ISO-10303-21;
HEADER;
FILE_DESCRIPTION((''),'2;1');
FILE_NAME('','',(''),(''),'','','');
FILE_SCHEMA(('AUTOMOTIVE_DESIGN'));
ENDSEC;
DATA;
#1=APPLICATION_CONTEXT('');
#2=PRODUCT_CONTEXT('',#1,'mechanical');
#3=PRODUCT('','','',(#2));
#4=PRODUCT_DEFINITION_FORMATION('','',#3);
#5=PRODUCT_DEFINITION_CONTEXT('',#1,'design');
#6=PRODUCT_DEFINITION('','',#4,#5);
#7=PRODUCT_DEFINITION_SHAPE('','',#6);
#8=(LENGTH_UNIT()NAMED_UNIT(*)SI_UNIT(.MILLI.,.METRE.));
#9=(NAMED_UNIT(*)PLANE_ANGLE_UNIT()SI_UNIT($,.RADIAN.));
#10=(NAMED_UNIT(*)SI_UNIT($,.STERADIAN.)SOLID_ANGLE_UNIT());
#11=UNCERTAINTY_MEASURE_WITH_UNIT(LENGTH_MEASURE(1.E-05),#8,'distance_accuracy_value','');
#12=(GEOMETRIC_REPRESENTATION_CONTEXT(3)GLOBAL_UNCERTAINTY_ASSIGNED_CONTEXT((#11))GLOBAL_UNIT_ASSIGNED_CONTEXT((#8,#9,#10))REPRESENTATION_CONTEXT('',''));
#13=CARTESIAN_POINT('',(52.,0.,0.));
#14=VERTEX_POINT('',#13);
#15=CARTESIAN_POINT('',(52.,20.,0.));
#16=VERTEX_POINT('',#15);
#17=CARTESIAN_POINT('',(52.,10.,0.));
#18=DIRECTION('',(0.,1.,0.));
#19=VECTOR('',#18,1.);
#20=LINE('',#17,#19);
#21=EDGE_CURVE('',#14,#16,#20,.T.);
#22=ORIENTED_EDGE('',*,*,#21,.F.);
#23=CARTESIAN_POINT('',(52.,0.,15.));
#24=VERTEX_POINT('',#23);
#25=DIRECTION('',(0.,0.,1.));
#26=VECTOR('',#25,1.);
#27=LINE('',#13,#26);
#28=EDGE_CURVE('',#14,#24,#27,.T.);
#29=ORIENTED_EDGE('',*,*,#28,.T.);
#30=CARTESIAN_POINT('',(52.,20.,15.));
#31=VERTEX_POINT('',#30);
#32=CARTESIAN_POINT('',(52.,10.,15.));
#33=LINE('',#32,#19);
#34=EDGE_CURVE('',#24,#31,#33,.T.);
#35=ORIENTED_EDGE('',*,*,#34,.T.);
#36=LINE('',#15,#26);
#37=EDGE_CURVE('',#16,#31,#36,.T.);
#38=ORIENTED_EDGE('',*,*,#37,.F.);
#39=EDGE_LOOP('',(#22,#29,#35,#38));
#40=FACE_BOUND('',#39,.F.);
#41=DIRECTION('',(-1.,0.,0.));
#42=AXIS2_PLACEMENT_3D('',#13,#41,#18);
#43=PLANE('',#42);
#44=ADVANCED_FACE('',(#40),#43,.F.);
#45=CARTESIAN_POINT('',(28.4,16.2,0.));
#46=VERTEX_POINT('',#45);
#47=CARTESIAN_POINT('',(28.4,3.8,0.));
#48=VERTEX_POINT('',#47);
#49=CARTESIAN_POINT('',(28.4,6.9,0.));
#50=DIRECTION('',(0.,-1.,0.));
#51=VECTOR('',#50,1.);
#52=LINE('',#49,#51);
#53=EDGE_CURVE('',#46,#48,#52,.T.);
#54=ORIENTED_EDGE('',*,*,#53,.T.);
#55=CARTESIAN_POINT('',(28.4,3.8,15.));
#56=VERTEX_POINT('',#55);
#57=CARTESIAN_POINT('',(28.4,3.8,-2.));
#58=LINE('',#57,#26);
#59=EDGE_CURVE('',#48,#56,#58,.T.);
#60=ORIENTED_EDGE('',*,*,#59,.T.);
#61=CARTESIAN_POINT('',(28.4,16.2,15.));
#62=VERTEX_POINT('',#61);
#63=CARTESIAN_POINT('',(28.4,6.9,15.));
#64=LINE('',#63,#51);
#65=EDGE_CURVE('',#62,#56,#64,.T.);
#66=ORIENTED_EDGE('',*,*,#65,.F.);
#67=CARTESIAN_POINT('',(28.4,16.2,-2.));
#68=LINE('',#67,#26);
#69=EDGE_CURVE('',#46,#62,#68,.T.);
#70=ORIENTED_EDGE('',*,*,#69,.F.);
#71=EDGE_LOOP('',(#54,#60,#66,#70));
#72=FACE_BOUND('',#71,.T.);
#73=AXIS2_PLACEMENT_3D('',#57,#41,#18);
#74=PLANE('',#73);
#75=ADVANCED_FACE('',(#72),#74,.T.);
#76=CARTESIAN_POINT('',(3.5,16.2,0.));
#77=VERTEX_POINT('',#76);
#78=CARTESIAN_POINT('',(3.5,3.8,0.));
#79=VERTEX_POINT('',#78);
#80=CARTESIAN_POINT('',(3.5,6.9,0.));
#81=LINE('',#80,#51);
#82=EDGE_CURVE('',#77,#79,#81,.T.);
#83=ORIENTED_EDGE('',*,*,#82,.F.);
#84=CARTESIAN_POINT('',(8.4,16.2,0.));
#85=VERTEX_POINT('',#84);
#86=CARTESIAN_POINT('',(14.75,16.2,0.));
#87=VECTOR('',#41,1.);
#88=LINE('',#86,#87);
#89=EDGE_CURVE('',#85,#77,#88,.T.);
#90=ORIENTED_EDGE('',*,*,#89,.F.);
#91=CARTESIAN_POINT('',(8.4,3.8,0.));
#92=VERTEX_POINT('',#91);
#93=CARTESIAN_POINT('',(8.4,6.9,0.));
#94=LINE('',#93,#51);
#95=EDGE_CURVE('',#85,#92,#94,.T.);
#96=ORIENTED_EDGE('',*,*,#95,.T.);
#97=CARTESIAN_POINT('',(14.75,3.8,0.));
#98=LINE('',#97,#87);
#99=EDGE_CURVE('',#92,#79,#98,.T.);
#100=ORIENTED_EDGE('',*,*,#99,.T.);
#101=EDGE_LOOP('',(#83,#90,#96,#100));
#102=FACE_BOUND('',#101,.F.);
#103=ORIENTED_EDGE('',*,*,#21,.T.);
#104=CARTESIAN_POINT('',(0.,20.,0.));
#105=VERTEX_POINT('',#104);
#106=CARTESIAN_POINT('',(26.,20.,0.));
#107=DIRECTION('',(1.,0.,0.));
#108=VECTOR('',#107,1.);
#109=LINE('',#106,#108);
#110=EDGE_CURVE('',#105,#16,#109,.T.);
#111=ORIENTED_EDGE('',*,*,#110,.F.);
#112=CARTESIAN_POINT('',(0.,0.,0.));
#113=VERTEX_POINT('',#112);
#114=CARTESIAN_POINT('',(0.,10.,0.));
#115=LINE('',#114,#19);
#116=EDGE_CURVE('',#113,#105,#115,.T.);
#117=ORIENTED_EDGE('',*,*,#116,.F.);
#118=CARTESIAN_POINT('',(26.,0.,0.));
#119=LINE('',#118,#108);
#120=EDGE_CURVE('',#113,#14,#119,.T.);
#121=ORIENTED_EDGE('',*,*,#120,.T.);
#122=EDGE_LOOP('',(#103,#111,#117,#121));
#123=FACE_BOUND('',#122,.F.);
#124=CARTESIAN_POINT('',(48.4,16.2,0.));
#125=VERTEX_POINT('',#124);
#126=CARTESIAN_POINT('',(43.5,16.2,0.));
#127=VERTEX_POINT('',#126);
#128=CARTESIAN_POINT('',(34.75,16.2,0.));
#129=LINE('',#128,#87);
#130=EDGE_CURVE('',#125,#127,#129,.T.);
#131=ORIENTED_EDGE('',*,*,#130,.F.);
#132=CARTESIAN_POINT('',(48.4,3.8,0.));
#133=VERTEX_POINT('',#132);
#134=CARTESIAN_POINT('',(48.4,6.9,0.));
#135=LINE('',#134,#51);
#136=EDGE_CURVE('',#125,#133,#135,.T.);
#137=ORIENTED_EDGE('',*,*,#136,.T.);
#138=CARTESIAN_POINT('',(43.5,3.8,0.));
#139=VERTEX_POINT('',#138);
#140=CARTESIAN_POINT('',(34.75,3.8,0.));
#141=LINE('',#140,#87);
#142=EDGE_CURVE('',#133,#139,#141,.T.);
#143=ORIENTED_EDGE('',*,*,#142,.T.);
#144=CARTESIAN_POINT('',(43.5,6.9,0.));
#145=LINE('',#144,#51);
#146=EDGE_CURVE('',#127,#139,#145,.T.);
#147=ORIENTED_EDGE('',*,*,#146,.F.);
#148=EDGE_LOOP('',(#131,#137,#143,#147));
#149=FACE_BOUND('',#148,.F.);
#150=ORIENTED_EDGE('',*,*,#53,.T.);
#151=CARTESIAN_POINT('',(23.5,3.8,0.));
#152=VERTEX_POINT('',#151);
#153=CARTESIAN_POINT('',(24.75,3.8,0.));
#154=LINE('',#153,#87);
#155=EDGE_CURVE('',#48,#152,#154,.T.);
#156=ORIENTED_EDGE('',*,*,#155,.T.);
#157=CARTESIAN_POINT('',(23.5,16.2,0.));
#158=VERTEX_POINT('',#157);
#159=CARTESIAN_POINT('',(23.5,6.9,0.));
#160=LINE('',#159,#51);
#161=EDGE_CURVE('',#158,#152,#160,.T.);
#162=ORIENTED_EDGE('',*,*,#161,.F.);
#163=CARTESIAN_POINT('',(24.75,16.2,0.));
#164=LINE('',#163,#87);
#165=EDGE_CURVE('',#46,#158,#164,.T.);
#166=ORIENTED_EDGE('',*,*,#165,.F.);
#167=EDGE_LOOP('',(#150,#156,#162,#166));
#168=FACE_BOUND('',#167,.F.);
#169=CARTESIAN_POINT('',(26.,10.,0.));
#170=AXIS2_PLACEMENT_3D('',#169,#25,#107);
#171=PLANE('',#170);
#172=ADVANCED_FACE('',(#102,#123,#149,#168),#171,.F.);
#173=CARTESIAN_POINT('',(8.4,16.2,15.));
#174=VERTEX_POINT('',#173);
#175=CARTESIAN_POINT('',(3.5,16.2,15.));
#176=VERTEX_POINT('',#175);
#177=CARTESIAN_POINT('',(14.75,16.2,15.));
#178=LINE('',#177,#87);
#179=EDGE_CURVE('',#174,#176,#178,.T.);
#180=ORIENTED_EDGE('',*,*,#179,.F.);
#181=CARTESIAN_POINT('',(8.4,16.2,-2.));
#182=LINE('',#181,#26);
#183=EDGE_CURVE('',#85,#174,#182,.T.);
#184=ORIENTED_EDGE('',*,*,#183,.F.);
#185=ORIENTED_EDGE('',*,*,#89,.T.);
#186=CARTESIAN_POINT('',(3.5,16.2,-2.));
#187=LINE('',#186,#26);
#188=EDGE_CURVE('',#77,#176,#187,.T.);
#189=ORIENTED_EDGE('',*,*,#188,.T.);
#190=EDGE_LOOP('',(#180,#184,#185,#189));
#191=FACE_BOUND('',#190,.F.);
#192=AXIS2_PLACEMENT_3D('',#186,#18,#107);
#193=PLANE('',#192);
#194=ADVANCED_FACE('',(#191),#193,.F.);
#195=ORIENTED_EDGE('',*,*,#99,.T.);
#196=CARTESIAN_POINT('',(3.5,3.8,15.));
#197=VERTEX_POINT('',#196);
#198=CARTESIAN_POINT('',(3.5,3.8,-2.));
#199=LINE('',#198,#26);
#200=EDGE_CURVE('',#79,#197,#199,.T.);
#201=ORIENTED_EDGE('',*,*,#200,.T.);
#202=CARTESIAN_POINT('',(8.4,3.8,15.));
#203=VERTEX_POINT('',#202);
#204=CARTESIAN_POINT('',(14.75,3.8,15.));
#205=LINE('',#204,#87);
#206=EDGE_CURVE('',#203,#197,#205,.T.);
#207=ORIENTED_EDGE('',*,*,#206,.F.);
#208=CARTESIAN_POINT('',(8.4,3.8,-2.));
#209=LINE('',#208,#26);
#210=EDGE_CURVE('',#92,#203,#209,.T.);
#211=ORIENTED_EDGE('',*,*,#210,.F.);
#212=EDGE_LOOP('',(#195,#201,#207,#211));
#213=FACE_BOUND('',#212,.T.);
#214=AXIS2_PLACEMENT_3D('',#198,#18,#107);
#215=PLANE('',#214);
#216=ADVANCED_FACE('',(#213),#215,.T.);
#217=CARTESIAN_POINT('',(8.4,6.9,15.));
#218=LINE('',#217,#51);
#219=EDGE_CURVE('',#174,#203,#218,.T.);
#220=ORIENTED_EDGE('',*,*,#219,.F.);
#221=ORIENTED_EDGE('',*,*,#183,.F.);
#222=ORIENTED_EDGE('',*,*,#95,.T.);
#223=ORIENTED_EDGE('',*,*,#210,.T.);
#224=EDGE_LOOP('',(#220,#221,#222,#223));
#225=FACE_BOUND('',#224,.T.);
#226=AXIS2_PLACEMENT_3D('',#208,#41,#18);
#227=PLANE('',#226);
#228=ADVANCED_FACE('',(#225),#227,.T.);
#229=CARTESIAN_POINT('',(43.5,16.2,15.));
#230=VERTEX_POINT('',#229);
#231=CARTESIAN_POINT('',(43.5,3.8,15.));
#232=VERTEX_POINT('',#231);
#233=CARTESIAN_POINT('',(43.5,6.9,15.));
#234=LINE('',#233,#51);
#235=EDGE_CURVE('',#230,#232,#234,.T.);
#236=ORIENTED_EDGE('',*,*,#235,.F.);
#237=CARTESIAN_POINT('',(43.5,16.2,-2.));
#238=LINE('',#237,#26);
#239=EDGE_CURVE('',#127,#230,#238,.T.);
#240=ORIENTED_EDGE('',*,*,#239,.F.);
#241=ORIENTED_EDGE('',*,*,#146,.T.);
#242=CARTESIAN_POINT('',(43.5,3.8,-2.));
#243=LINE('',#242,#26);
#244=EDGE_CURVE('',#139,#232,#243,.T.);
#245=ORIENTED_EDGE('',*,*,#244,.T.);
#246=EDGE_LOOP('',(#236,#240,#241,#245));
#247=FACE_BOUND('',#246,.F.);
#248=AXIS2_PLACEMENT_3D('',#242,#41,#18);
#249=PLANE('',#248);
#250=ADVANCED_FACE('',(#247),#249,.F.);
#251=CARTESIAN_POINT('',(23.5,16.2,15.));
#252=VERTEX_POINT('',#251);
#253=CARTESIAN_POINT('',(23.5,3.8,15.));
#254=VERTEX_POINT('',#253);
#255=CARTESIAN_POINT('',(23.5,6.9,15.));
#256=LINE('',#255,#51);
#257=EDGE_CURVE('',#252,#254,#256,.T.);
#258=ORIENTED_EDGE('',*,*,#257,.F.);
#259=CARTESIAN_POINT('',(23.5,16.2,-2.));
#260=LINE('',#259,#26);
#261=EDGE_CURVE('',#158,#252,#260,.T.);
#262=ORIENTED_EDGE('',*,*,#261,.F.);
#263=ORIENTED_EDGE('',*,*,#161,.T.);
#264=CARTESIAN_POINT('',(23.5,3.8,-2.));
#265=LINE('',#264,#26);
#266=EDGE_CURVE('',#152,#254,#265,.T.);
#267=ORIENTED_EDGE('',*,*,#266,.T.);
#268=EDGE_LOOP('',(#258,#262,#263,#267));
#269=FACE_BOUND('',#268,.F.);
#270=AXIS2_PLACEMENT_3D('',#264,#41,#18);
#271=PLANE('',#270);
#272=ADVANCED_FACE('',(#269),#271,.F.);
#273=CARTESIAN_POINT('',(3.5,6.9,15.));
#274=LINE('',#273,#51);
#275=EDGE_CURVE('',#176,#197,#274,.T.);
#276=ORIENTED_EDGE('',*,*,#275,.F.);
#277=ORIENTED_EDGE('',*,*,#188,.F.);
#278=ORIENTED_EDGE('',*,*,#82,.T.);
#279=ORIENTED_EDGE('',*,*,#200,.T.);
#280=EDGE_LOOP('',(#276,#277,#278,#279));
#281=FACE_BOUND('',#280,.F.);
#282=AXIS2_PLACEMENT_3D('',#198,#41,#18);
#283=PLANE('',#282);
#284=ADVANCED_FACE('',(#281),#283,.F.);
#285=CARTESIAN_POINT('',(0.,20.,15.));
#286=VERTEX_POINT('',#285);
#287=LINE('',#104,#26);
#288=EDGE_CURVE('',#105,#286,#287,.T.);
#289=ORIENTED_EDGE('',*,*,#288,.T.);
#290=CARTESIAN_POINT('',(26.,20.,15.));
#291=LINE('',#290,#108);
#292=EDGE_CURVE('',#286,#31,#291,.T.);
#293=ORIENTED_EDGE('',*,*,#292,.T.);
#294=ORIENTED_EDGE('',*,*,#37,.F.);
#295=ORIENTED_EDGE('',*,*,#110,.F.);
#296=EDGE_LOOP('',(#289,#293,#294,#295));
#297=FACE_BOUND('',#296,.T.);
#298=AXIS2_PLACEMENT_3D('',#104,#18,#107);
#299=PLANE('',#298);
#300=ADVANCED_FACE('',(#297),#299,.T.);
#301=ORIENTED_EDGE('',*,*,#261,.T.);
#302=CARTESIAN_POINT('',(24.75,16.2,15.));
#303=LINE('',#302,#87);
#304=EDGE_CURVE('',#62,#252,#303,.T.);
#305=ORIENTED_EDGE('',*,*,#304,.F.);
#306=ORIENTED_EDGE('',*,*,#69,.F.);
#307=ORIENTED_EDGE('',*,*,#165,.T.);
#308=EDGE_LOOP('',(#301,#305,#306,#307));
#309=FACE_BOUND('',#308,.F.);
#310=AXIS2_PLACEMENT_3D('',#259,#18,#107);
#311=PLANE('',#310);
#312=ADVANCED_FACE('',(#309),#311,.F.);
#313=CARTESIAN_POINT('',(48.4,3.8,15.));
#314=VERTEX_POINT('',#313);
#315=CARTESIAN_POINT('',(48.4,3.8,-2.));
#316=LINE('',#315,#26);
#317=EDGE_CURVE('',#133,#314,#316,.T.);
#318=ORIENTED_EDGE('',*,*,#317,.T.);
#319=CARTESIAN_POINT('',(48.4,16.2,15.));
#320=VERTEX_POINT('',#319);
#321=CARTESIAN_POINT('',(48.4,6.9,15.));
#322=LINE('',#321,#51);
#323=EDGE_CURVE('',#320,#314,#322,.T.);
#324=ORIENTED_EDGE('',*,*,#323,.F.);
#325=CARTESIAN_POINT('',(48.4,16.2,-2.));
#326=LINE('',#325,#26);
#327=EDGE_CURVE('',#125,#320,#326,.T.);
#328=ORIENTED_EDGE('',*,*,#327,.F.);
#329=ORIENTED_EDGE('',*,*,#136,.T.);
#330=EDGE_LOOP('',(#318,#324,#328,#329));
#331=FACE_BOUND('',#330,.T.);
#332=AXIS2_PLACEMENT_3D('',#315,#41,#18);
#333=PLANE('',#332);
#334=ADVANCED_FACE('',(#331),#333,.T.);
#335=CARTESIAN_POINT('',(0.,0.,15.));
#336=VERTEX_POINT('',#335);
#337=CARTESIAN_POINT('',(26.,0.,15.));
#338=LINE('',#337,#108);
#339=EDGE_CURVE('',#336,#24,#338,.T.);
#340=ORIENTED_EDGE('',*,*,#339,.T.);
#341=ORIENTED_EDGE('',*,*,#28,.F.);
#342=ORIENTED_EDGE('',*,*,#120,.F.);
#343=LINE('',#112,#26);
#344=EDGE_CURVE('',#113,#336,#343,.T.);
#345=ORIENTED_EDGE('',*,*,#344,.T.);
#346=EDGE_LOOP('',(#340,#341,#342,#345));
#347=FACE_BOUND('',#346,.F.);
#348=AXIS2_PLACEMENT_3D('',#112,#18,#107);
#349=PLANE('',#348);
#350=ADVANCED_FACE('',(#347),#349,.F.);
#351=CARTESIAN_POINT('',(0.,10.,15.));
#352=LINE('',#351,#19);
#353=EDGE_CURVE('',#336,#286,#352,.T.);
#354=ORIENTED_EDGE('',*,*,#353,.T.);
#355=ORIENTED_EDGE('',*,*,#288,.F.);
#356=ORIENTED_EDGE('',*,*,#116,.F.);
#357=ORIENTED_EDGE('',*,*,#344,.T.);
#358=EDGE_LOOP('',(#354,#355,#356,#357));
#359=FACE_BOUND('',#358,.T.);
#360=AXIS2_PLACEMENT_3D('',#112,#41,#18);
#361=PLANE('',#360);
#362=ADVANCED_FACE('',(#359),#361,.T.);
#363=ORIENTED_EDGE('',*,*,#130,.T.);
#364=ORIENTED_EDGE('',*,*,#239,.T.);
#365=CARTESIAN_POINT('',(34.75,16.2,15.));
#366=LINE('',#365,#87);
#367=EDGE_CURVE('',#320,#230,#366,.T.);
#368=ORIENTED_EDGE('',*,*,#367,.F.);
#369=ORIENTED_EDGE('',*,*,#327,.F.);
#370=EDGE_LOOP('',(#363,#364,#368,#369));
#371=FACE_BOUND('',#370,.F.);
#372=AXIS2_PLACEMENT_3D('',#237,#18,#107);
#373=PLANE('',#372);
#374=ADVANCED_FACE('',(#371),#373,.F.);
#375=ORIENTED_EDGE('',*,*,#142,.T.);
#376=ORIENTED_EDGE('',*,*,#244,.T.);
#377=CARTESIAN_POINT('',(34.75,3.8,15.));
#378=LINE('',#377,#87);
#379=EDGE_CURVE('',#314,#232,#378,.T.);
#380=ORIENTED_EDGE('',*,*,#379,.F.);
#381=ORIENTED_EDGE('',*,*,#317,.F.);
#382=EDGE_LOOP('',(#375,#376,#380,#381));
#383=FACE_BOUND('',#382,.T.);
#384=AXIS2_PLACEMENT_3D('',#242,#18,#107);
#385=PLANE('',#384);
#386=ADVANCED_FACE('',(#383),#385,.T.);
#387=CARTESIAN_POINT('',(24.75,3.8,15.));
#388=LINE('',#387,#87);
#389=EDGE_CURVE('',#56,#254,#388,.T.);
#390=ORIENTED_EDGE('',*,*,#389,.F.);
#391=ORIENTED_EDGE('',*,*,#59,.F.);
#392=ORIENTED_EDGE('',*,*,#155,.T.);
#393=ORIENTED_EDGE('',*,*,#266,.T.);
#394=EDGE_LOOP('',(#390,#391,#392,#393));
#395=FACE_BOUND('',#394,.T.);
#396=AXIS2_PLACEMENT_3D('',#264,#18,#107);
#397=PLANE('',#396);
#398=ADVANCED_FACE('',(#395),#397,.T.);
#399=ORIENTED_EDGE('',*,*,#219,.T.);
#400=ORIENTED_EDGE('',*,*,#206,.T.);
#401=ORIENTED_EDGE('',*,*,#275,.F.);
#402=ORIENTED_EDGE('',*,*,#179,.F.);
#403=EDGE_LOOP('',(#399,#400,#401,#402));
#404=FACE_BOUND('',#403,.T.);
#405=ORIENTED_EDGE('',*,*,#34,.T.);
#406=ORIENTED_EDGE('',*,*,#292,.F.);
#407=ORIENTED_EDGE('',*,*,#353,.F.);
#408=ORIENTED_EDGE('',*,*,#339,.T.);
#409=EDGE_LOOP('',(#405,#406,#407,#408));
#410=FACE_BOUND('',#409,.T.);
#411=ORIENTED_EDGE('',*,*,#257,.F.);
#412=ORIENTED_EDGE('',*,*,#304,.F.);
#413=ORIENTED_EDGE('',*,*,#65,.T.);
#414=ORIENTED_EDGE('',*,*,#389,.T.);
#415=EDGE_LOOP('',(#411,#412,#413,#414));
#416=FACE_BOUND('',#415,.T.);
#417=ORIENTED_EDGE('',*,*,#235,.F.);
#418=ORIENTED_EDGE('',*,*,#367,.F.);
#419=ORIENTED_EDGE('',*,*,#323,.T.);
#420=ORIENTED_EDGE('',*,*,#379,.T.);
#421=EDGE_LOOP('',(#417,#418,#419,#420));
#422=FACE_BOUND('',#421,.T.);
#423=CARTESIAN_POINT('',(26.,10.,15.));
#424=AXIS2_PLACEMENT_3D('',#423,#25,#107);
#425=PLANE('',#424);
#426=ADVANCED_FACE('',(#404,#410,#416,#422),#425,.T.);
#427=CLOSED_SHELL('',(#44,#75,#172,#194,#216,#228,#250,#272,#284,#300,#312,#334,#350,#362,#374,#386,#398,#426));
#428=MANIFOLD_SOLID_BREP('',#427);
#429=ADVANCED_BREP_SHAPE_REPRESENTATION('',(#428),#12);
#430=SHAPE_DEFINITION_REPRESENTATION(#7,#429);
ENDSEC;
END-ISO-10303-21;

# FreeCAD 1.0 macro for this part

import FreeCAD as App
import Part
import Sketcher
Q = App.Units.Quantity


def add_polygon(sketch, points):
    """Adds a closed chain of lines whose ends are joined by coincident constraints."""
    first, n = sketch.GeometryCount, len(points)
    for a, b in zip(points, points[1:] + points[:1]):
        sketch.addGeometry(Part.LineSegment(App.Vector(*a, 0), App.Vector(*b, 0)), False)
    for i in range(n):
        sketch.addConstraint(Sketcher.Constraint("Coincident", first + i, 2, first + (i + 1) % n, 1))

doc = App.newDocument("Part")
body = doc.addObject("PartDesign::Body", "Body")

# Sketch on XY plane
sketch1 = body.newObject("Sketcher::SketchObject", "Sketch")
sketch1.AttachmentSupport = (doc.getObject("XY_Plane"), [""])
sketch1.MapMode = "FlatFace"
sketch1.AttachmentOffset = App.Placement(App.Vector(0, 0, -2), App.Rotation())
add_polygon(sketch1, [(23.5, 16.2), (23.5, 3.8), (28.4, 3.8), (28.4, 16.2)])  # lines 0-3
sketch1.addConstraint([
    Sketcher.Constraint("Vertical", 0),
    Sketcher.Constraint("Horizontal", 1),
    Sketcher.Constraint("Vertical", 2),
    Sketcher.Constraint("Horizontal", 3),
    Sketcher.Constraint("DistanceX", 1, 1, 1, 2, Q("4.9 mm")),
    Sketcher.Constraint("DistanceY", 0, 2, 0, 1, Q("12.4 mm")),
    Sketcher.Constraint("DistanceX", -1, 1, 0, 2, Q("23.5 mm")),
    Sketcher.Constraint("DistanceY", -1, 1, 0, 2, Q("3.8 mm")),
])
pad1 = body.newObject("PartDesign::Pad", "Pad")
pad1.Profile = sketch1
pad1.Length = 25
body2 = doc.addObject("PartDesign::Body", "Body001")

# Sketch on XY plane
sketch2 = body2.newObject("Sketcher::SketchObject", "Sketch001")
sketch2.AttachmentSupport = (doc.getObject("XY_Plane001"), [""])
sketch2.MapMode = "FlatFace"
sketch2.AttachmentOffset = App.Placement(App.Vector(0, 0, -2), App.Rotation())
add_polygon(sketch2, [(43.5, 16.2), (43.5, 3.8), (48.4, 3.8), (48.4, 16.2)])  # lines 0-3
sketch2.addConstraint([
    Sketcher.Constraint("Vertical", 0),
    Sketcher.Constraint("Horizontal", 1),
    Sketcher.Constraint("Vertical", 2),
    Sketcher.Constraint("Horizontal", 3),
    Sketcher.Constraint("DistanceX", 1, 1, 1, 2, Q("4.9 mm")),
    Sketcher.Constraint("DistanceY", 0, 2, 0, 1, Q("12.4 mm")),
    Sketcher.Constraint("DistanceX", -1, 1, 0, 2, Q("43.5 mm")),
    Sketcher.Constraint("DistanceY", -1, 1, 0, 2, Q("3.8 mm")),
])
pad2 = body2.newObject("PartDesign::Pad", "Pad001")
pad2.Profile = sketch2
pad2.Length = 25
body3 = doc.addObject("PartDesign::Body", "Body002")
body3.AllowCompound = True

# Sketch on XY plane
sketch3 = body3.newObject("Sketcher::SketchObject", "Sketch002")
sketch3.AttachmentSupport = (doc.getObject("XY_Plane002"), [""])
sketch3.MapMode = "FlatFace"
sketch3.AttachmentOffset = App.Placement(App.Vector(0, 0, -2), App.Rotation())
add_polygon(sketch3, [(3.5, 16.2), (3.5, 3.8), (8.4, 3.8), (8.4, 16.2)])  # lines 0-3
sketch3.addConstraint([
    Sketcher.Constraint("Vertical", 0),
    Sketcher.Constraint("Horizontal", 1),
    Sketcher.Constraint("Vertical", 2),
    Sketcher.Constraint("Horizontal", 3),
    Sketcher.Constraint("DistanceX", 1, 1, 1, 2, Q("4.9 mm")),
    Sketcher.Constraint("DistanceY", 0, 2, 0, 1, Q("12.4 mm")),
    Sketcher.Constraint("DistanceX", -1, 1, 0, 2, Q("3.5 mm")),
    Sketcher.Constraint("DistanceY", -1, 1, 0, 2, Q("3.8 mm")),
])
pad3 = body3.newObject("PartDesign::Pad", "Pad002")
pad3.Profile = sketch3
pad3.Length = 25
doc.recompute()

boolean = body3.newObject("PartDesign::Boolean", "Boolean")
boolean.Type = "Fuse"
boolean.addObjects([body])
doc.recompute()

boolean2 = body3.newObject("PartDesign::Boolean", "Boolean001")
boolean2.Type = "Fuse"
boolean2.addObjects([body2])
body4 = doc.addObject("PartDesign::Body", "Body003")

# Sketch on XY plane
sketch4 = body4.newObject("Sketcher::SketchObject", "Sketch003")
sketch4.AttachmentSupport = (doc.getObject("XY_Plane003"), [""])
sketch4.MapMode = "FlatFace"
add_polygon(sketch4, [(0, 20), (0, 0), (52, 0), (52, 20)])  # lines 0-3
sketch4.addConstraint([
    Sketcher.Constraint("Vertical", 0),
    Sketcher.Constraint("Horizontal", 1),
    Sketcher.Constraint("Vertical", 2),
    Sketcher.Constraint("Horizontal", 3),
    Sketcher.Constraint("Coincident", 0, 2, -1, 1),
    Sketcher.Constraint("DistanceX", 1, 1, 1, 2, Q("52 mm")),
    Sketcher.Constraint("DistanceY", 0, 2, 0, 1, Q("20 mm")),
])
pad4 = body4.newObject("PartDesign::Pad", "Pad003")
pad4.Profile = sketch4
pad4.Length = 15
doc.recompute()

boolean3 = body4.newObject("PartDesign::Boolean", "Boolean002")
boolean3.Type = "Cut"
boolean3.addObjects([body3])

doc.recompute()
